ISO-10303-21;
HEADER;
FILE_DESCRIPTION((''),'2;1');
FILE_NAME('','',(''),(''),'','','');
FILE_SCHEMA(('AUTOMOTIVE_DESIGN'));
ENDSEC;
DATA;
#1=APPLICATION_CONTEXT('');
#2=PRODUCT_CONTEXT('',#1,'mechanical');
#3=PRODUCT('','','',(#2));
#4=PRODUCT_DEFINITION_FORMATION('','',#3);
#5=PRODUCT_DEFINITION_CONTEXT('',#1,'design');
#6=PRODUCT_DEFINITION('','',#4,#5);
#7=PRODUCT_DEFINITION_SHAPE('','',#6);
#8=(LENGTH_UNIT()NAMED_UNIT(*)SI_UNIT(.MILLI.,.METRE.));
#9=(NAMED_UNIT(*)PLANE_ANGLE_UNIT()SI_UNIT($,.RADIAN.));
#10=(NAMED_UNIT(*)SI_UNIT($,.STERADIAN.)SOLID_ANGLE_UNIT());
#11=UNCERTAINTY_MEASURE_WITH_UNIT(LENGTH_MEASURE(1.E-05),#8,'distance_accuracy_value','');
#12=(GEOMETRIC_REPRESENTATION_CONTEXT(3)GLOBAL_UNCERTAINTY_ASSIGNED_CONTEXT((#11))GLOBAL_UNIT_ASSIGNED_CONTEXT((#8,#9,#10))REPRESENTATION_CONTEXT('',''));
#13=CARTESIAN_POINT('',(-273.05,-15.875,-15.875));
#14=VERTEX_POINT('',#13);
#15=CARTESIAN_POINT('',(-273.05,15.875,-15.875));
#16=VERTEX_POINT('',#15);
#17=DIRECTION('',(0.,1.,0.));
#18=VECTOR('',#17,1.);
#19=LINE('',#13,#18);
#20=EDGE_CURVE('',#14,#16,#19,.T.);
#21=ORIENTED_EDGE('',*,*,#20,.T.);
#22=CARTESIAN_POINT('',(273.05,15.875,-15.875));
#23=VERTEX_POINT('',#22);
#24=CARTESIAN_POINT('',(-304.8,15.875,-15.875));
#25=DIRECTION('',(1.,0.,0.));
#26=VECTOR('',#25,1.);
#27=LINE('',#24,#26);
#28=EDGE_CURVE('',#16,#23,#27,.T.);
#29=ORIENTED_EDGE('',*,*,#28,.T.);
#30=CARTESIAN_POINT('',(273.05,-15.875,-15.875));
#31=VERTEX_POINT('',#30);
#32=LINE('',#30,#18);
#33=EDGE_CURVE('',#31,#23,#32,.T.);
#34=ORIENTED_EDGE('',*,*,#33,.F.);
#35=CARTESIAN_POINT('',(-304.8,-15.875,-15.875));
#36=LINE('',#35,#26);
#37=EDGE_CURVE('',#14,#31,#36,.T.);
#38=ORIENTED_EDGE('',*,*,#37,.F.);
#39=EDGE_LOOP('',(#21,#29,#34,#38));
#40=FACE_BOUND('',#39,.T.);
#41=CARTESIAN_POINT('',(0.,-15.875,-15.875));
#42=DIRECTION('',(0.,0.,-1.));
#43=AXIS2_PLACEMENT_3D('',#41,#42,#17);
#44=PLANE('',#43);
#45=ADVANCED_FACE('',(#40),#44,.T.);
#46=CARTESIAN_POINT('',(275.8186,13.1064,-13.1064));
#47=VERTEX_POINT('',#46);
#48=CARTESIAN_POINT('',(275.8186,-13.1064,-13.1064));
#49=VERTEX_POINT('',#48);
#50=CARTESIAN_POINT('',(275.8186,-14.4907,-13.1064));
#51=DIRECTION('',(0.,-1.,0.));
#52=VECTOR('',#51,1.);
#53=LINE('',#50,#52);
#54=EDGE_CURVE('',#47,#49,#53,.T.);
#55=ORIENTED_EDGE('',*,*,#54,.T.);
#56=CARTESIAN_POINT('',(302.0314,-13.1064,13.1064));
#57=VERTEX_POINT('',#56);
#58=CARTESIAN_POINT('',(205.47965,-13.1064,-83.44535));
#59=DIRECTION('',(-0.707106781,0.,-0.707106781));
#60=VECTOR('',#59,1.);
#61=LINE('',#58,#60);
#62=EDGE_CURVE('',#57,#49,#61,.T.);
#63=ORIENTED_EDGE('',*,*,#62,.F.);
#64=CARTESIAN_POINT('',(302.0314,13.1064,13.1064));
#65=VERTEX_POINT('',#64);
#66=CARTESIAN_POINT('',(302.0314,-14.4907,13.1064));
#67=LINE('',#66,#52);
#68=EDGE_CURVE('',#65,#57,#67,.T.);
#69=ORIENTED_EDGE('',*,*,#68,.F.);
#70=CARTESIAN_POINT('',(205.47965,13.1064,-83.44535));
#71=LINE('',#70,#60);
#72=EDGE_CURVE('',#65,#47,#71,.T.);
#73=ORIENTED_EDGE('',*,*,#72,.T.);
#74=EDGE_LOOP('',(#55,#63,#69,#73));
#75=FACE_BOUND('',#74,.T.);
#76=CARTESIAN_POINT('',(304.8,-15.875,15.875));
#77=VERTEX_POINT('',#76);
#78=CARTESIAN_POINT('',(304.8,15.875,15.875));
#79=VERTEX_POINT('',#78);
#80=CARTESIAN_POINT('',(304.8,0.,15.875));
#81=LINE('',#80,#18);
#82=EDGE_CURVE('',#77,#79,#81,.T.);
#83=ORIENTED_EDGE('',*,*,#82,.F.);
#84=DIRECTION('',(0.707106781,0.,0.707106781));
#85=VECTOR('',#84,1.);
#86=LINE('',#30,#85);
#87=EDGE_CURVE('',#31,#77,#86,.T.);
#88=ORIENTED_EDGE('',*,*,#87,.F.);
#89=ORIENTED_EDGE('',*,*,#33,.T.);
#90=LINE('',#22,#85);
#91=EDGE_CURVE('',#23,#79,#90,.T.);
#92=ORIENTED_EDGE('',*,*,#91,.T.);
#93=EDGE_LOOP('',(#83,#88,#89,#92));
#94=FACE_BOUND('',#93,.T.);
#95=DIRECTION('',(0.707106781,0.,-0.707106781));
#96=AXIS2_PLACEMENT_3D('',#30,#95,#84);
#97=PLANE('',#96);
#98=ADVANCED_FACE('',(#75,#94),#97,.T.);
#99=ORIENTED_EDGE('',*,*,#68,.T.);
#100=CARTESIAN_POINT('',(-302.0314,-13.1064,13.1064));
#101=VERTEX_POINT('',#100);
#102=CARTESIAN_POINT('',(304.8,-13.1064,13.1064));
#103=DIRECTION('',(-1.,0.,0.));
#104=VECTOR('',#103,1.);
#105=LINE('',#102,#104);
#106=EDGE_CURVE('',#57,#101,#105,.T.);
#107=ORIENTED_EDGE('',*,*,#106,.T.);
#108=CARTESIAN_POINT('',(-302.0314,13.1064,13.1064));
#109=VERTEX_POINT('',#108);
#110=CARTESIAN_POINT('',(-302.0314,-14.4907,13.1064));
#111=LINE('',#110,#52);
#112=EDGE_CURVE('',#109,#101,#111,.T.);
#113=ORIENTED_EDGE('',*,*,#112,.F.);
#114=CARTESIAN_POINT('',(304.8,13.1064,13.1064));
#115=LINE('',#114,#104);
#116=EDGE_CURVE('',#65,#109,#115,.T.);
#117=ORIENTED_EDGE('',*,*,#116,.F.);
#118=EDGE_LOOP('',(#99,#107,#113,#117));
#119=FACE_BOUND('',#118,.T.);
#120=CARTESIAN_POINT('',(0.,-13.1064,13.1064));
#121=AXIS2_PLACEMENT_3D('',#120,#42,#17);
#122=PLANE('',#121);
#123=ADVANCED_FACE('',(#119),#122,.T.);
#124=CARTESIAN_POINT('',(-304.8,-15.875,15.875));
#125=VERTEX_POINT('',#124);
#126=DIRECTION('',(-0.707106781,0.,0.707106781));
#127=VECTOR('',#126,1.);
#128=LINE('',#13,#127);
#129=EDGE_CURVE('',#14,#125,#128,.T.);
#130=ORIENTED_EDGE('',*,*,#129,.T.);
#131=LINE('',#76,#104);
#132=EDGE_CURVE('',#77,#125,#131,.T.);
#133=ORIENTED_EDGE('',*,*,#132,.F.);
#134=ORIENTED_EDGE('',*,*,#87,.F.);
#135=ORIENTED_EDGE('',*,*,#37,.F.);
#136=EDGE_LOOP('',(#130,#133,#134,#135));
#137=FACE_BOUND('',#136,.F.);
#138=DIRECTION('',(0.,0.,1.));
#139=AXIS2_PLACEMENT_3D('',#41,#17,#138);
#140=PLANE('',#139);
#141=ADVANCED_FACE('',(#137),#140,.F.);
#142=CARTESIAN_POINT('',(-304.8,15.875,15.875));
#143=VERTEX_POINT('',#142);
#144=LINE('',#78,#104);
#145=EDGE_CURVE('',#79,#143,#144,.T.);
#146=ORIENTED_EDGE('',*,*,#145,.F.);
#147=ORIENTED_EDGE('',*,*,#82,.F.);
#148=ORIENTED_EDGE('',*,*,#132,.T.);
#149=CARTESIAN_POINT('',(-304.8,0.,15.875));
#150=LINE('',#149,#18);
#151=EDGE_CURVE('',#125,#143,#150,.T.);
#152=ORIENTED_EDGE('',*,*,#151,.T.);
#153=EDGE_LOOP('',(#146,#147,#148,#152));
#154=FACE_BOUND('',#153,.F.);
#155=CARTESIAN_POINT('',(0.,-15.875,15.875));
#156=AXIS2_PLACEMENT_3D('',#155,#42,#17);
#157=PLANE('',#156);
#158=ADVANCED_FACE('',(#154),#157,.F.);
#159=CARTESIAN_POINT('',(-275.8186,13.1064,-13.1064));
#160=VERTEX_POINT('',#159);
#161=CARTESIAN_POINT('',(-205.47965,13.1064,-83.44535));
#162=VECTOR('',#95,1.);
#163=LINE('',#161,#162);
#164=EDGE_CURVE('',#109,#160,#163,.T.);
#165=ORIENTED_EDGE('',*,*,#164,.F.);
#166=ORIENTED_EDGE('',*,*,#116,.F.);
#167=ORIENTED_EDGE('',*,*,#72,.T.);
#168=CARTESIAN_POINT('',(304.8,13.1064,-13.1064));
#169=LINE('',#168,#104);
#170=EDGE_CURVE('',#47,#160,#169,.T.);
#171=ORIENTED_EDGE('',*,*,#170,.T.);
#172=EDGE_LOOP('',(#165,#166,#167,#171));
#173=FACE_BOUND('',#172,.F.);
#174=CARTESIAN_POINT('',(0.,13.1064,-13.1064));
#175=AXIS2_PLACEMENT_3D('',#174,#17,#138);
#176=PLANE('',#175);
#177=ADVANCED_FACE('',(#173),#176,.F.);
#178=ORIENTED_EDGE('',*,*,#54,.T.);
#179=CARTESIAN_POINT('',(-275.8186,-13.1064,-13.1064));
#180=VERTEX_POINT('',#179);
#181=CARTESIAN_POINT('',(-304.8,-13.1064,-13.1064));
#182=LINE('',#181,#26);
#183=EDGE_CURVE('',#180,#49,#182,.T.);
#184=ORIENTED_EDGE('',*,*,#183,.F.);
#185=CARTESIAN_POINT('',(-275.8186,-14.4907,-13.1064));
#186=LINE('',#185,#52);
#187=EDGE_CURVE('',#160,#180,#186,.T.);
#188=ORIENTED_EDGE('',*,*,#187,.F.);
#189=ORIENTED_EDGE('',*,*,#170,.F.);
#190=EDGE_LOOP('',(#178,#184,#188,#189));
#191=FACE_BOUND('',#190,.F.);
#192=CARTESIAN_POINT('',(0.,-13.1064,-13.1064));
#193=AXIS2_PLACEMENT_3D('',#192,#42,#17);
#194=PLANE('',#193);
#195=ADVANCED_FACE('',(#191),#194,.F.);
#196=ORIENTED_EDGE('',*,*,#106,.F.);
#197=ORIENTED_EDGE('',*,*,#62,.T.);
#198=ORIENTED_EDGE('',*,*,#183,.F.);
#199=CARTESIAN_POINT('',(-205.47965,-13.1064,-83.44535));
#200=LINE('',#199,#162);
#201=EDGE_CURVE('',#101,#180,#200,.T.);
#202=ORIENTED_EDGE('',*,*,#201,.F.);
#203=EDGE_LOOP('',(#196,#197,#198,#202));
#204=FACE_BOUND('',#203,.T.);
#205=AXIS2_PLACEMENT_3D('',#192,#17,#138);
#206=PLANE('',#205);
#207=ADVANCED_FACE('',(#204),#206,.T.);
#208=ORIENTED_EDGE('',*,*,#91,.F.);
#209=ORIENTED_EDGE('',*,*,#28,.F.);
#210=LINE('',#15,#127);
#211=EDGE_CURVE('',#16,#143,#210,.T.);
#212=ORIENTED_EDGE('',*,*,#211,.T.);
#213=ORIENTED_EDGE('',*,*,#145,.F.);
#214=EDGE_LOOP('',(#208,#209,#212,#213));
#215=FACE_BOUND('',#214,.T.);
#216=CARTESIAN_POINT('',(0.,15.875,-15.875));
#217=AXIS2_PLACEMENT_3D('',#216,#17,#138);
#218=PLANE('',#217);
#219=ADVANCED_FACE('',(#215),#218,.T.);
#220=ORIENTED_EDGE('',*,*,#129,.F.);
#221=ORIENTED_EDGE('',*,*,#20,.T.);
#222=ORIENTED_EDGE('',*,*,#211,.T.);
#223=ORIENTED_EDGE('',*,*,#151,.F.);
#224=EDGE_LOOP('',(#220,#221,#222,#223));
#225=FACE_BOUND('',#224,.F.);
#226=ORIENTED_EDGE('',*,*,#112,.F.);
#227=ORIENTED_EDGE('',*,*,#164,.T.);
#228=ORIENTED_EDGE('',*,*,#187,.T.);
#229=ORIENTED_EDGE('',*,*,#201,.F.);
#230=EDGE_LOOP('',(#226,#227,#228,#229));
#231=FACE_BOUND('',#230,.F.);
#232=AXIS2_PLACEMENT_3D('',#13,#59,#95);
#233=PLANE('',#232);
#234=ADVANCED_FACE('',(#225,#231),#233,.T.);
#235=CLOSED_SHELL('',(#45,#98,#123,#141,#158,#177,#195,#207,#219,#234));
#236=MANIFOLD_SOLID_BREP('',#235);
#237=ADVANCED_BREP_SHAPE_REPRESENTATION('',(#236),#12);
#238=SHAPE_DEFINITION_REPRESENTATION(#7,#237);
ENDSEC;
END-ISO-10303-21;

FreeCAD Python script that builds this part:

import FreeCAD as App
import Part
import Sketcher

V = App.Vector
Q = App.Units.Quantity


def add_polygon(sketch, points):
    """Adds a closed chain of lines whose ends are joined by coincident constraints."""
    first, n = sketch.GeometryCount, len(points)
    for a, b in zip(points, points[1:] + points[:1]):
        sketch.addGeometry(Part.LineSegment(App.Vector(*a, 0), App.Vector(*b, 0)), False)
    for i in range(n):
        sketch.addConstraint(Sketcher.Constraint("Coincident", first + i, 2, first + (i + 1) % n, 1))

doc = App.newDocument("Part")
body = doc.addObject("PartDesign::Body", "Body")

# Sketch on YZ plane
sketch1 = doc.addObject("Sketcher::SketchObject", "Sketch")
body.addObject(sketch1)
sketch1.AttachmentSupport = (doc.YZ_Plane, [""])
sketch1.MapMode = "FlatFace"
add_polygon(sketch1, [(-16, 16), (-16, -16), (16, -16), (16, 16)])  # lines 0-3
add_polygon(sketch1, [(13, -13), (-13, -13), (-13, 13), (13, 13)])  # lines 4-7
sketch1.addConstraint([
    Sketcher.Constraint("Vertical", 0),
    Sketcher.Constraint("Horizontal", 1),
    Sketcher.Constraint("Vertical", 2),
    Sketcher.Constraint("Horizontal", 3),
    Sketcher.Constraint("Horizontal", 4),
    Sketcher.Constraint("Vertical", 5),
    Sketcher.Constraint("Horizontal", 6),
    Sketcher.Constraint("Vertical", 7),
    Sketcher.Constraint("Symmetric", 0, 2, 2, 2, -1, 1),
    Sketcher.Constraint("Symmetric", 4, 2, 6, 2, -1, 1),
    Sketcher.Constraint("Equal", 3, 0),
    Sketcher.Constraint("Equal", 6, 5),
    Sketcher.Constraint("DistanceX", 1, 1, 1, 2, Q("1.25 in")),
    Sketcher.Constraint("DistanceX", 4, 2, 4, 1, Q("1.032 in")),
])
pad1 = doc.addObject("PartDesign::Pad", "Pad")
body.addObject(pad1)
pad1.Profile = sketch1
pad1.Type = "TwoLengths"
pad1.Length = Q("12 in")
pad1.Length2 = Q("12 in")

# Sketch on XZ plane
sketch2 = doc.addObject("Sketcher::SketchObject", "Sketch001")
body.addObject(sketch2)
sketch2.AttachmentSupport = (doc.XZ_Plane, [""])
sketch2.MapMode = "FlatFace"
sketch2.AttachmentOffset = App.Placement(V(0, 0, 0.625 * 25.4), App.Rotation())
add_polygon(sketch2, [(305, -16), (305, 16), (273, -16)])  # lines 0-2
sketch2.addConstraint([
    Sketcher.Constraint("Vertical", 0),
    Sketcher.Constraint("Horizontal", 2),
    Sketcher.Constraint("Equal", 2, 0),
    Sketcher.Constraint("DistanceX", -1, 1, 0, 2, Q("12 in")),
    Sketcher.Constraint("DistanceX", 2, 1, 2, 2, Q("1.25 in")),
    Sketcher.Constraint("DistanceY", -1, 1, 0, 2, Q("0.625 in")),
])
pocket1 = doc.addObject("PartDesign::Pocket", "Pocket")
body.addObject(pocket1)
pocket1.Profile = sketch2
pocket1.Length = Q("1.25 in")
doc.recompute()

mirrored = doc.addObject("PartDesign::Mirrored", "Mirrored")
body.addObject(mirrored)
mirrored.Originals = [pocket1]
mirrored.MirrorPlane = (doc.YZ_Plane, [""])
body.Tip = mirrored

doc.recompute()
